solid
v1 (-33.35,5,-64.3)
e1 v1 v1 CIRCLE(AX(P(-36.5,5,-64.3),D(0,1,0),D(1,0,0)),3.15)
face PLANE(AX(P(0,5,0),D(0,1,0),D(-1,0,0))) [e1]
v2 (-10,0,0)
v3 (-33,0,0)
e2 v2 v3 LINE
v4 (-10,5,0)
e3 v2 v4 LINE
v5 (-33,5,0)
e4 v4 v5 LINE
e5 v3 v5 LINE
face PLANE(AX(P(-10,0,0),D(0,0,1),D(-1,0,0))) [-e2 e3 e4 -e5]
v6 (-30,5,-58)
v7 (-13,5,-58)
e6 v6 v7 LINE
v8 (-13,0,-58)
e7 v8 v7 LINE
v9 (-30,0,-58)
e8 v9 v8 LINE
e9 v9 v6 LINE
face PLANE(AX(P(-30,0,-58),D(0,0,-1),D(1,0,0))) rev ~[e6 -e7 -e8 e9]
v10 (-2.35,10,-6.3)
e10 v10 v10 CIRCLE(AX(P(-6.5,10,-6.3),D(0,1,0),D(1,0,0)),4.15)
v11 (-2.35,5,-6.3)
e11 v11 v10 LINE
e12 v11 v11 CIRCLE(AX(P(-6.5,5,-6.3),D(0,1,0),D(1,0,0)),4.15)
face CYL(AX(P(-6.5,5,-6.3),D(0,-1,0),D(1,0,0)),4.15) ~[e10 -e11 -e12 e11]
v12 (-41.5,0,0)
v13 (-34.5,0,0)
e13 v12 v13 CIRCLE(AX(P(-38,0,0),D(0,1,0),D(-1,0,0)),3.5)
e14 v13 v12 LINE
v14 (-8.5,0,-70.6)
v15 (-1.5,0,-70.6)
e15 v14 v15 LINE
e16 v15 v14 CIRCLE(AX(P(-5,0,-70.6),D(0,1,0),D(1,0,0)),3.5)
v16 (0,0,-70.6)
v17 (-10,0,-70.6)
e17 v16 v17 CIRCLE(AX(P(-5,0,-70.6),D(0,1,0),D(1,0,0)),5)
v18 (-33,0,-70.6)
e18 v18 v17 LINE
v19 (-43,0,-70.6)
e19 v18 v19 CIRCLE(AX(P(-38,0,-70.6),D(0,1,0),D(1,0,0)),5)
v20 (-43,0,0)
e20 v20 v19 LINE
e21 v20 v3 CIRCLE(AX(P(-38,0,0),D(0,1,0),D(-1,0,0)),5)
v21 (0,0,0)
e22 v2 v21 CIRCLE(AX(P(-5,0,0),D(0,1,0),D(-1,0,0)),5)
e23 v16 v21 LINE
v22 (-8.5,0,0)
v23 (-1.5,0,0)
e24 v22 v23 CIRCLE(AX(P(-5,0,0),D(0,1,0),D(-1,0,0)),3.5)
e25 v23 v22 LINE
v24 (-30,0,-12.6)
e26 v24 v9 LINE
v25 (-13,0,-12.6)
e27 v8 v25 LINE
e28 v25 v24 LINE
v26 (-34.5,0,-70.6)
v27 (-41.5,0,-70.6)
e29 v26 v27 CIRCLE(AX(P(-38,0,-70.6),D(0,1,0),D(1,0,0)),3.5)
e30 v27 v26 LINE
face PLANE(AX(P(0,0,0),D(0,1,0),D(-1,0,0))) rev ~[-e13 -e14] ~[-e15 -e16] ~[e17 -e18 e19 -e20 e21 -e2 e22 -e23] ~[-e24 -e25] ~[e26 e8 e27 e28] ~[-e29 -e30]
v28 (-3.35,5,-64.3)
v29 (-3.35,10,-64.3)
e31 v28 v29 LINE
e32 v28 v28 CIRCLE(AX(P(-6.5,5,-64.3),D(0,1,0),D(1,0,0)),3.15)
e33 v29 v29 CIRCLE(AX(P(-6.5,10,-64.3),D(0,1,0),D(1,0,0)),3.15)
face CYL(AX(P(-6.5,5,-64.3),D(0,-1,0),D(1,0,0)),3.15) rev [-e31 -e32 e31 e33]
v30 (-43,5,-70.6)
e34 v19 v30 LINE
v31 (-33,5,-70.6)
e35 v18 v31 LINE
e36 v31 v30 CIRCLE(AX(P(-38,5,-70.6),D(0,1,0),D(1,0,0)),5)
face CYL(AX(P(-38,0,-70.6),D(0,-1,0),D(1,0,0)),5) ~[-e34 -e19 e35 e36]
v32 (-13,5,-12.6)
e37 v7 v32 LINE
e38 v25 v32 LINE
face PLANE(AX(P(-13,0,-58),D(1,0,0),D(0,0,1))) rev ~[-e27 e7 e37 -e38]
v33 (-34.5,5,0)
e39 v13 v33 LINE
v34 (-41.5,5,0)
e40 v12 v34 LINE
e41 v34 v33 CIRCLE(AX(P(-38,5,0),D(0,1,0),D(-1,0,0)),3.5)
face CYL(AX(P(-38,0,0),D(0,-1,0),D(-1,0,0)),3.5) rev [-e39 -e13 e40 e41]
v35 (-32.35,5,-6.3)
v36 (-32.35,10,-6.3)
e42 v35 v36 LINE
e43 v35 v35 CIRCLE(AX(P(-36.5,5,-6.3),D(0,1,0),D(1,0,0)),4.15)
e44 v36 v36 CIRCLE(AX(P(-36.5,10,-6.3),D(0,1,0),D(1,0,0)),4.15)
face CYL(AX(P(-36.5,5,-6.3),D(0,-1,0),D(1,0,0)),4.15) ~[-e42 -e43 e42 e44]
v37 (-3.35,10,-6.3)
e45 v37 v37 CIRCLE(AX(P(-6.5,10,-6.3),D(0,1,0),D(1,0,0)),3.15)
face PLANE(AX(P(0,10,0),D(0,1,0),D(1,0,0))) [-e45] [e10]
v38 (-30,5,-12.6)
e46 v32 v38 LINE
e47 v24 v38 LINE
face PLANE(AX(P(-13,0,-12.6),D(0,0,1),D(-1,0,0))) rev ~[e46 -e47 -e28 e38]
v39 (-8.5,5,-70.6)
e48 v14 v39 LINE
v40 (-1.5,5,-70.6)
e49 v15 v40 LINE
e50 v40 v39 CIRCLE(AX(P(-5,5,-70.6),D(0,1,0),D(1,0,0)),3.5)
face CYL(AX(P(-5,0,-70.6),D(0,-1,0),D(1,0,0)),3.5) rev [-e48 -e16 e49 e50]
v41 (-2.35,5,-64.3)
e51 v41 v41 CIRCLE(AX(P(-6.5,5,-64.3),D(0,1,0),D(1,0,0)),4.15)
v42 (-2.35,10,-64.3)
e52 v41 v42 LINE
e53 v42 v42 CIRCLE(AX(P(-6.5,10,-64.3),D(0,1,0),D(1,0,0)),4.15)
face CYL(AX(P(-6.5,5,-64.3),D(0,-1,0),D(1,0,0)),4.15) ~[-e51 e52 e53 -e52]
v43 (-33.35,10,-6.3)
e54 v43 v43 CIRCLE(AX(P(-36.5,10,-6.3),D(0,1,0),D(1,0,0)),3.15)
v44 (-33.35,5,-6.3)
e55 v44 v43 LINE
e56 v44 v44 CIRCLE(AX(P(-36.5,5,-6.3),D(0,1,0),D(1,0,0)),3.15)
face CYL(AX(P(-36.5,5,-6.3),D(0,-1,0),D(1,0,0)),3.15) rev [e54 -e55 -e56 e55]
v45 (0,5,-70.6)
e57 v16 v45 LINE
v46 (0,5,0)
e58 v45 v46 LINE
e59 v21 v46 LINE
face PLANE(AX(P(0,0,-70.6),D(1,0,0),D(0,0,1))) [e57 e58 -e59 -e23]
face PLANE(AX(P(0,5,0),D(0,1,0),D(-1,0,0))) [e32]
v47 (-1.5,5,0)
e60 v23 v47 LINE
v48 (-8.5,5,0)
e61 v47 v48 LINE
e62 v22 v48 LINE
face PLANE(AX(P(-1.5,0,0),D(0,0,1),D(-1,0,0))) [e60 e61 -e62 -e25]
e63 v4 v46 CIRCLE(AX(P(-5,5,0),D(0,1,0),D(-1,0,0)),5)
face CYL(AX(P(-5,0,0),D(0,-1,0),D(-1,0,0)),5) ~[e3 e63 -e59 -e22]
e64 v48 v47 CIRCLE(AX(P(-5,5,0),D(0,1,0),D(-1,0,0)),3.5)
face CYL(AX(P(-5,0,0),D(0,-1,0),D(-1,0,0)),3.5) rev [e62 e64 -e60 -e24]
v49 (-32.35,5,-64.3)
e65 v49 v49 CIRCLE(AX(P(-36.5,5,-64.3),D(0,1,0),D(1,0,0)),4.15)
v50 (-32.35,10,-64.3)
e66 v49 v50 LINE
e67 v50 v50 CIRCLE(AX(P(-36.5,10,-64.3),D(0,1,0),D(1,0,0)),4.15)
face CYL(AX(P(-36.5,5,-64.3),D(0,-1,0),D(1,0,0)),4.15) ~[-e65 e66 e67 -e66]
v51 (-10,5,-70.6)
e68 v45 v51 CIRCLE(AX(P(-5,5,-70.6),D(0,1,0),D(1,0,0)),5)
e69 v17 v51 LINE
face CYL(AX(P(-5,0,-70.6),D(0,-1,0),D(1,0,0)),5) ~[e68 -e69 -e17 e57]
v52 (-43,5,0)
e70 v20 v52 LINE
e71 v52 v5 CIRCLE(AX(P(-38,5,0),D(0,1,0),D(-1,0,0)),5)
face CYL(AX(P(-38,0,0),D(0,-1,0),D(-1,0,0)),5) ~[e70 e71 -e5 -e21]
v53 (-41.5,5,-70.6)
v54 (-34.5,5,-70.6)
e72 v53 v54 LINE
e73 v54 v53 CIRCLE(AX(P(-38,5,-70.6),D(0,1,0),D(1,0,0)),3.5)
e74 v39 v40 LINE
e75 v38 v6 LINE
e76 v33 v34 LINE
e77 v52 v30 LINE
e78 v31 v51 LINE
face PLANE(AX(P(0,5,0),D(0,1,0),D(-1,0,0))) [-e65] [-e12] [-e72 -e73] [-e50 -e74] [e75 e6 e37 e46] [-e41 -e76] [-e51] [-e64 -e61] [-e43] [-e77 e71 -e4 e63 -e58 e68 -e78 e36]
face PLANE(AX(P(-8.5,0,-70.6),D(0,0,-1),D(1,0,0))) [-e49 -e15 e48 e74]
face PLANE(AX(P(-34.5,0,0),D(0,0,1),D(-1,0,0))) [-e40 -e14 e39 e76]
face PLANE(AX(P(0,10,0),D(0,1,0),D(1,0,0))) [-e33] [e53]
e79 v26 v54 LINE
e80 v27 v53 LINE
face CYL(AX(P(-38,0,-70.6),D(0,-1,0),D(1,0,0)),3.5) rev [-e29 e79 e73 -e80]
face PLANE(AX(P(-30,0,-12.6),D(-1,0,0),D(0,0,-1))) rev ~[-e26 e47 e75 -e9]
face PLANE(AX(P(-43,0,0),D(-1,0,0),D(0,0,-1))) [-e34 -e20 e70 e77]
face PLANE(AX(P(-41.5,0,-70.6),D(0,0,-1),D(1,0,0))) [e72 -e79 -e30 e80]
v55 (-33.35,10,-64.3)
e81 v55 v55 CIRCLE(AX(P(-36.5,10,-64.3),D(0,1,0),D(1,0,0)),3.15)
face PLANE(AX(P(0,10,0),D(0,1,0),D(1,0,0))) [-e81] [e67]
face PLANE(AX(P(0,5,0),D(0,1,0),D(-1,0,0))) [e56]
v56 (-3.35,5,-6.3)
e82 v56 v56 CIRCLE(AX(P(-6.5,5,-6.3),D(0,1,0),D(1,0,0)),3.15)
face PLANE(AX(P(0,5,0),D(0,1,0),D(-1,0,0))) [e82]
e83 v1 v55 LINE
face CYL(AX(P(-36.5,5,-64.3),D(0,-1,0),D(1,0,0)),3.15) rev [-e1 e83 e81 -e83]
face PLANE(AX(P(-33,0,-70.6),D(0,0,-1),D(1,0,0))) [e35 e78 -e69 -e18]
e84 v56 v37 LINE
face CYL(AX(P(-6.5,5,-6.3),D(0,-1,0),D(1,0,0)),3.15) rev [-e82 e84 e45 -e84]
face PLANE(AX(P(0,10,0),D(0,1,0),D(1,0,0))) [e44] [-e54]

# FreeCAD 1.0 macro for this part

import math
import FreeCAD as App
import Part
import Sketcher


def add_polygon(sketch, points):
    """Adds a closed chain of lines whose ends are joined by coincident constraints."""
    first, n = sketch.GeometryCount, len(points)
    for a, b in zip(points, points[1:] + points[:1]):
        sketch.addGeometry(Part.LineSegment(App.Vector(*a, 0), App.Vector(*b, 0)), False)
    for i in range(n):
        sketch.addConstraint(Sketcher.Constraint("Coincident", first + i, 2, first + (i + 1) % n, 1))

doc = App.newDocument("Part")
body = doc.addObject("PartDesign::Body", "Body")

sketch1 = doc.addObject("Sketcher::SketchObject", "Sketch")
body.addObject(sketch1)
sketch1.AttachmentSupport = (doc.XZ_Plane, [""])
sketch1.MapMode = "FlatFace"
sketch1.addGeometry(Part.ArcOfCircle(Part.Circle(App.Vector(-5, 0, 0), App.Vector(0, 0, 1), 5), math.radians(0), math.radians(180)), False)
sketch1.addGeometry(Part.LineSegment(App.Vector(0, 0, 0), App.Vector(0, -70.6, 0)), False)
sketch1.addGeometry(Part.ArcOfCircle(Part.Circle(App.Vector(-5, -70.6, 0), App.Vector(0, 0, 1), 5), math.radians(180), math.radians(360)), False)
sketch1.addGeometry(Part.LineSegment(App.Vector(-10, -70.6, 0), App.Vector(-33, -70.6, 0)), False)
sketch1.addGeometry(Part.ArcOfCircle(Part.Circle(App.Vector(-38, -70.6, 0), App.Vector(0, 0, 1), 5), math.radians(180), math.radians(360)), False)
sketch1.addGeometry(Part.LineSegment(App.Vector(-43, -70.6, 0), App.Vector(-43, 0, 0)), False)
sketch1.addGeometry(Part.ArcOfCircle(Part.Circle(App.Vector(-38, 0, 0), App.Vector(0, 0, 1), 5), math.radians(0), math.radians(180)), False)
sketch1.addGeometry(Part.LineSegment(App.Vector(-33, 0, 0), App.Vector(-10, 0, 0)), False)
sketch1.addGeometry(Part.ArcOfCircle(Part.Circle(App.Vector(-5, 0, 0), App.Vector(0, 0, 1), 3.5), math.radians(0), math.radians(180)), False)
sketch1.addGeometry(Part.LineSegment(App.Vector(-8.5, 0, 0), App.Vector(-1.5, 0, 0)), False)
add_polygon(sketch1, [(-30, -12.6), (-30, -58), (-13, -58), (-13, -12.6)])
sketch1.addGeometry(Part.LineSegment(App.Vector(-41.5, 0, 0), App.Vector(-34.5, 0, 0)), False)
sketch1.addGeometry(Part.ArcOfCircle(Part.Circle(App.Vector(-38, 0, 0), App.Vector(0, 0, 1), 3.5), math.radians(0), math.radians(180)), False)
sketch1.addGeometry(Part.LineSegment(App.Vector(-34.5, -70.6, 0), App.Vector(-41.5, -70.6, 0)), False)
sketch1.addGeometry(Part.ArcOfCircle(Part.Circle(App.Vector(-38, -70.6, 0), App.Vector(0, 0, 1), 3.5), math.radians(180), math.radians(360)), False)
sketch1.addGeometry(Part.LineSegment(App.Vector(-1.5, -70.6, 0), App.Vector(-8.5, -70.6, 0)), False)
sketch1.addGeometry(Part.ArcOfCircle(Part.Circle(App.Vector(-5, -70.6, 0), App.Vector(0, 0, 1), 3.5), math.radians(180), math.radians(360)), False)
sketch1.addConstraint([
    Sketcher.Constraint("Tangent", 0, 1, 1, 1),
    Sketcher.Constraint("Tangent", 1, 2, 2, 2),
    Sketcher.Constraint("Coincident", 2, 1, 3, 1),
    Sketcher.Constraint("Coincident", 3, 2, 4, 2),
    Sketcher.Constraint("Tangent", 4, 1, 5, 1),
    Sketcher.Constraint("Tangent", 5, 2, 6, 2),
    Sketcher.Constraint("Coincident", 6, 1, 7, 1),
    Sketcher.Constraint("Coincident", 7, 2, 0, 2),
    Sketcher.Constraint("Coincident", 8, 1, 9, 2),
    Sketcher.Constraint("Coincident", 9, 1, 8, 2),
    Sketcher.Constraint("Coincident", 14, 1, 15, 2),
    Sketcher.Constraint("Coincident", 15, 1, 14, 2),
    Sketcher.Constraint("Coincident", 16, 1, 17, 2),
    Sketcher.Constraint("Coincident", 17, 1, 16, 2),
    Sketcher.Constraint("Coincident", 18, 1, 19, 2),
    Sketcher.Constraint("Coincident", 19, 1, 18, 2),
    Sketcher.Constraint("Vertical", 1),
    Sketcher.Constraint("Horizontal", 3),
    Sketcher.Constraint("Vertical", 5),
    Sketcher.Constraint("Horizontal", 7),
    Sketcher.Constraint("Horizontal", 9),
    Sketcher.Constraint("Vertical", 10),
    Sketcher.Constraint("Horizontal", 11),
    Sketcher.Constraint("Vertical", 12),
    Sketcher.Constraint("Horizontal", 13),
    Sketcher.Constraint("Horizontal", 14),
    Sketcher.Constraint("Horizontal", 16),
    Sketcher.Constraint("Horizontal", 18),
    Sketcher.Constraint("Coincident", 0, 1, -1, 1),
    Sketcher.Constraint("Coincident", 8, 3, 0, 3),
    Sketcher.Constraint("Coincident", 15, 3, 6, 3),
    Sketcher.Constraint("Coincident", 17, 3, 4, 3),
    Sketcher.Constraint("Coincident", 19, 3, 2, 3),
    Sketcher.Constraint("Equal", 0, 2),
    Sketcher.Constraint("Equal", 2, 4),
    Sketcher.Constraint("Equal", 4, 6),
    Sketcher.Constraint("Equal", 8, 15),
    Sketcher.Constraint("Equal", 15, 17),
    Sketcher.Constraint("Equal", 17, 19),
    Sketcher.Constraint("PointOnObject", 6, 3, -1),
    Sketcher.Constraint("PointOnObject", 6, 1, -1),
    Sketcher.Constraint("PointOnObject", 8, 1, -1),
    Sketcher.Constraint("PointOnObject", 14, 1, -1),
    Sketcher.Constraint("Horizontal", 2, 3, 4, 3),
    Sketcher.Constraint("Horizontal", 1, 2, 2, 1),
    Sketcher.Constraint("Horizontal", 4, 1, 16, 1),
    Sketcher.Constraint("Horizontal", 17, 1, 18, 1),
    Sketcher.Constraint("Radius", 0, 5.0),
    Sketcher.Constraint("DistanceX", 11, 1, 11, 2, 17.0),
    Sketcher.Constraint("DistanceY", 1, 2, 1, 1, 70.6),
    Sketcher.Constraint("DistanceY", 10, 2, 10, 1, 45.4),
    Sketcher.Constraint("DistanceX", 4, 1, -1, 1, 43.0),
    Sketcher.Constraint("DistanceX", 8, 1, -1, 1, 1.5),
    Sketcher.Constraint("DistanceX", 10, 2, -1, 1, 30.0),
    Sketcher.Constraint("DistanceY", 10, 2, -1, 1, 58.0),
])
pad1 = doc.addObject("PartDesign::Pad", "Pad")
body.addObject(pad1)
pad1.Profile = sketch1
pad1.Length = 5
pad1.Reversed = True

sketch2 = doc.addObject("Sketcher::SketchObject", "Sketch001")
body.addObject(sketch2)
sketch2.AttachmentSupport = (doc.XZ_Plane, [""])
sketch2.MapMode = "FlatFace"
sketch2.AttachmentOffset = App.Placement(App.Vector(0, 0, -5), App.Rotation())
sketch2.addGeometry([
    Part.Circle(App.Vector(-6.5, -6.3, 0), App.Vector(0, 0, 1), 4.2),
    Part.Circle(App.Vector(-6.5, -6.3, 0), App.Vector(0, 0, 1), 3.1),
    Part.Circle(App.Vector(-6.5, -64.3, 0), App.Vector(0, 0, 1), 4.2),
    Part.Circle(App.Vector(-6.5, -64.3, 0), App.Vector(0, 0, 1), 3.1),
    Part.Circle(App.Vector(-36.5, -6.3, 0), App.Vector(0, 0, 1), 4.2),
    Part.Circle(App.Vector(-36.5, -6.3, 0), App.Vector(0, 0, 1), 3.1),
    Part.Circle(App.Vector(-36.5, -64.3, 0), App.Vector(0, 0, 1), 4.2),
    Part.Circle(App.Vector(-36.5, -64.3, 0), App.Vector(0, 0, 1), 3.1),
], False)
sketch2.addConstraint([
    Sketcher.Constraint("Coincident", 1, 3, 0, 3),
    Sketcher.Constraint("Coincident", 3, 3, 2, 3),
    Sketcher.Constraint("Coincident", 5, 3, 4, 3),
    Sketcher.Constraint("Coincident", 7, 3, 6, 3),
    Sketcher.Constraint("Equal", 0, 2),
    Sketcher.Constraint("Equal", 1, 3),
    Sketcher.Constraint("Equal", 2, 4),
    Sketcher.Constraint("Equal", 3, 5),
    Sketcher.Constraint("Equal", 4, 6),
    Sketcher.Constraint("Equal", 5, 7),
    Sketcher.Constraint("Horizontal", 1, 3, 4, 3),
    Sketcher.Constraint("Horizontal", 3, 3, 6, 3),
    Sketcher.Constraint("Vertical", 1, 3, 2, 3),
    Sketcher.Constraint("Vertical", 5, 3, 6, 3),
    Sketcher.Constraint("Diameter", 1, 6.3),
    Sketcher.Constraint("Diameter", 0, 8.3),
    Sketcher.Constraint("DistanceY", 0, 3, -1, 1, 6.3),
    Sketcher.Constraint("DistanceY", 2, 3, 0, 3, 58.0),
    Sketcher.Constraint("DistanceX", 4, 3, 0, 3, 30.0),
    Sketcher.Constraint("DistanceX", 0, 3, -1, 1, 6.5),
])
pad2 = doc.addObject("PartDesign::Pad", "Pad001")
body.addObject(pad2)
pad2.Profile = sketch2
pad2.Length = 5
pad2.Reversed = True

doc.recompute()
